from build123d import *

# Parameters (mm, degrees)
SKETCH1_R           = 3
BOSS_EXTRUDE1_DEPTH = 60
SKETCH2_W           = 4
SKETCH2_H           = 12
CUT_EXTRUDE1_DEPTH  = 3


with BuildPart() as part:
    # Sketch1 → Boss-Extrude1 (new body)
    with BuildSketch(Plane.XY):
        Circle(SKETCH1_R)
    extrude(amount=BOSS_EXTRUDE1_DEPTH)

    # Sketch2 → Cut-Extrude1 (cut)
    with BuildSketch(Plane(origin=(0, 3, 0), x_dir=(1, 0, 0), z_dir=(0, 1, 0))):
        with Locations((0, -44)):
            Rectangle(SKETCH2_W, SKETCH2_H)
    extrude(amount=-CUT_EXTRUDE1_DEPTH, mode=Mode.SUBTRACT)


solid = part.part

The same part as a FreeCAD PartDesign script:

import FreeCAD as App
import Part
import Sketcher

V = App.Vector


def add_polygon(sketch, points):
    """Adds a closed chain of lines whose ends are joined by coincident constraints."""
    first, n = sketch.GeometryCount, len(points)
    for a, b in zip(points, points[1:] + points[:1]):
        sketch.addGeometry(Part.LineSegment(App.Vector(*a, 0), App.Vector(*b, 0)), False)
    for i in range(n):
        sketch.addConstraint(Sketcher.Constraint("Coincident", first + i, 2, first + (i + 1) % n, 1))

doc = App.newDocument("Part")
body = doc.addObject("PartDesign::Body", "Body")

sketch1 = body.newObject("Sketcher::SketchObject", "Sketch")
sketch1.AttachmentSupport = (doc.getObject("XY_Plane"), [""])
sketch1.MapMode = "FlatFace"
sketch1.addGeometry(Part.Circle(V(0, 0, 0), V(0, 0, 1), 3), False)
sketch1.addConstraint(Sketcher.Constraint("Coincident", 0, 3, -1, 1))
sketch1.addConstraint(Sketcher.Constraint("Diameter", 0, 6.0))
pad1 = body.newObject("PartDesign::Pad", "Pad")
pad1.Profile = sketch1
pad1.Length = 60

sketch2 = body.newObject("Sketcher::SketchObject", "Sketch001")
sketch2.AttachmentSupport = (doc.getObject("XZ_Plane"), [""])
sketch2.MapMode = "FlatFace"
sketch2.AttachmentOffset = App.Placement(V(0, 0, -3), App.Rotation())
add_polygon(sketch2, [(-2, 38), (-2, 50), (2, 50), (2, 38)])
sketch2.addConstraint(Sketcher.Constraint("Vertical", 0))
sketch2.addConstraint(Sketcher.Constraint("Horizontal", 1))
sketch2.addConstraint(Sketcher.Constraint("Vertical", 2))
sketch2.addConstraint(Sketcher.Constraint("Horizontal", 3))
sketch2.addConstraint(Sketcher.Constraint("DistanceX", 1, 1, 1, 2, 4.0))
sketch2.addConstraint(Sketcher.Constraint("DistanceY", 0, 1, 0, 2, 12.0))
sketch2.addConstraint(Sketcher.Constraint("DistanceX", 0, 2, -1, 1, 2.0))
sketch2.addConstraint(Sketcher.Constraint("DistanceY", -1, 1, 0, 2, 50.0))
pocket1 = body.newObject("PartDesign::Pocket", "Pocket")
pocket1.Profile = sketch2
pocket1.Length = 3
pocket1.Reversed = True

doc.recompute()
